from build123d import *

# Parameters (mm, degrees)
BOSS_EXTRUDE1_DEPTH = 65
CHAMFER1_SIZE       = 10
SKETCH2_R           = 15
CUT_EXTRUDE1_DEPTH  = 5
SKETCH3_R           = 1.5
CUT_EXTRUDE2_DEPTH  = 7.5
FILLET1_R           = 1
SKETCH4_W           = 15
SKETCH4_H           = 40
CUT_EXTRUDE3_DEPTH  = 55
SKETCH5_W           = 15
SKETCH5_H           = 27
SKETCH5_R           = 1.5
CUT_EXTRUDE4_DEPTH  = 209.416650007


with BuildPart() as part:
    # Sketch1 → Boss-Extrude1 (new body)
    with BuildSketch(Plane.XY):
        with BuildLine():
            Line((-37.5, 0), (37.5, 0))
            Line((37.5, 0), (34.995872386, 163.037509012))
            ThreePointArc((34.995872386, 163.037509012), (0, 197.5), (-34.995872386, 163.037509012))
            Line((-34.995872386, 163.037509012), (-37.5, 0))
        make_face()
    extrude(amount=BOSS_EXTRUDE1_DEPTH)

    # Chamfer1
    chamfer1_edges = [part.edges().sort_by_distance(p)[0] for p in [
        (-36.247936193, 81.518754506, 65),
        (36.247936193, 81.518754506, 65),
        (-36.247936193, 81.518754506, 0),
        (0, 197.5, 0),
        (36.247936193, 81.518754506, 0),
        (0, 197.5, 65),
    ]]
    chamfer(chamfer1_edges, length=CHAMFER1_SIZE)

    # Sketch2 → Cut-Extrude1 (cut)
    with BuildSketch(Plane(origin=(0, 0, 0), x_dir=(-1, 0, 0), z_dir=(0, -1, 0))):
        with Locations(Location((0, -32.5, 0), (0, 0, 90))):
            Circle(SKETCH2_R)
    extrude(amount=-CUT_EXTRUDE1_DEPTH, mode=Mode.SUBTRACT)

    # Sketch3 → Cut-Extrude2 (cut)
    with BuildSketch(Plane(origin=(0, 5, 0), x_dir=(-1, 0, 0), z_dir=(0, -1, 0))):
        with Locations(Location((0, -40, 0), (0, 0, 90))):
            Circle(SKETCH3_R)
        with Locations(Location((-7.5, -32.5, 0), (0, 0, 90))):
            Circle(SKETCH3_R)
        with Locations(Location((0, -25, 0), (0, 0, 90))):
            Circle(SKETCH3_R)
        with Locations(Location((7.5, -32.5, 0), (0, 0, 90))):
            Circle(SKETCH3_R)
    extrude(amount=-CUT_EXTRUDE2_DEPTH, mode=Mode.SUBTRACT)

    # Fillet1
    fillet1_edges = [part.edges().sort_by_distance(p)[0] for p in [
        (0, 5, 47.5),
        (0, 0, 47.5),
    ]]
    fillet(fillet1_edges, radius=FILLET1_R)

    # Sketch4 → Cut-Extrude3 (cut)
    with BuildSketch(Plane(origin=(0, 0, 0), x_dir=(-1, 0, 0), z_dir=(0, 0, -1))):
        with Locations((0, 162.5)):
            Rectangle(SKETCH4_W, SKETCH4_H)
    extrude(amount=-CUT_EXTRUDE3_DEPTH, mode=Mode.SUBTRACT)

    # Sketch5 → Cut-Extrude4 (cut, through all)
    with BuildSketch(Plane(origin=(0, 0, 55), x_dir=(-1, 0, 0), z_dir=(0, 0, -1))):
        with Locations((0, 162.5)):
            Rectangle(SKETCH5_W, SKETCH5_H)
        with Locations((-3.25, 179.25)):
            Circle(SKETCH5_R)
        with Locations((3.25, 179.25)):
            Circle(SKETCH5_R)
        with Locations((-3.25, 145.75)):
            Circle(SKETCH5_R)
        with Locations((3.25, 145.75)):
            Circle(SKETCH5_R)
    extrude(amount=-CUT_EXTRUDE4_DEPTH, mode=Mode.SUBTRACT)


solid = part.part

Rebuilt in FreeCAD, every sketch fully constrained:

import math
import FreeCAD as App
import Part
import Sketcher
Q = App.Units.Quantity


def edges_at(feature, points):
    """Names of the edges that pass closest to the given points."""
    edges = feature.Shape.Edges
    near = lambda p: min(range(len(edges)), key=lambda i: edges[i].distToShape(Part.Vertex(*p))[0])
    return sorted({f"Edge{near(p) + 1}" for p in points})


def add_polygon(sketch, points):
    """Adds a closed chain of lines whose ends are joined by coincident constraints."""
    first, n = sketch.GeometryCount, len(points)
    for a, b in zip(points, points[1:] + points[:1]):
        sketch.addGeometry(Part.LineSegment(App.Vector(*a, 0), App.Vector(*b, 0)), False)
    for i in range(n):
        sketch.addConstraint(Sketcher.Constraint("Coincident", first + i, 2, first + (i + 1) % n, 1))

doc = App.newDocument("Part")
params = doc.addObject("Spreadsheet::Sheet", "Params")
for row, (alias, value) in enumerate([
    ("sketch1_radius", "35 mm"),
    ("sketch1_width", "75 mm"),
    ("pad1_length", "65 mm"),
    ("chamfer_size", "10 mm"),
    ("sketch2_diameter", "30 mm"),
    ("pocket1_length", "5 mm"),
    ("sketch3_diameter", "3 mm"),
    ("pocket2_length", "7.5 mm"),
    ("fillet_radius", "1 mm"),
    ("sketch4_width", "15 mm"),
    ("sketch4_height", "40 mm"),
    ("pocket3_length", "55 mm"),
    ("sketch5_diameter", "3 mm"),
    ("sketch5_width", "15 mm"),
    ("sketch5_height", "27 mm"),
], start=1):
    params.set(f"A{row}", alias)
    params.set(f"B{row}", "=" + value)
    params.setAlias(f"B{row}", alias)

body = doc.addObject("PartDesign::Body", "Body")

sketch1 = body.newObject("Sketcher::SketchObject", "Sketch")
sketch1.AttachmentSupport = (doc.getObject("XY_Plane"), [""])
sketch1.MapMode = "FlatFace"
sketch1.addGeometry(Part.LineSegment(App.Vector(-38, 0, 0), App.Vector(38, 0, 0)), False)
sketch1.addGeometry(Part.LineSegment(App.Vector(38, 0, 0), App.Vector(35, 163, 0)), False)
sketch1.addGeometry(Part.ArcOfCircle(Part.Circle(App.Vector(0, 162, 0), App.Vector(0, 0, 1), 35), math.radians(1), math.radians(179)), False)
sketch1.addGeometry(Part.LineSegment(App.Vector(-35, 163, 0), App.Vector(-38, 0, 0)), False)
sketch1.addConstraint(Sketcher.Constraint("Coincident", 0, 2, 1, 1))
sketch1.addConstraint(Sketcher.Constraint("Tangent", 1, 2, 2, 1))
sketch1.addConstraint(Sketcher.Constraint("Tangent", 2, 2, 3, 1))
sketch1.addConstraint(Sketcher.Constraint("Coincident", 3, 2, 0, 1))
sketch1.addConstraint(Sketcher.Constraint("Horizontal", 0))
sketch1.addConstraint(Sketcher.Constraint("Symmetric", 0, 2, 3, 2, -1, 1))
sketch1.addConstraint(Sketcher.Constraint("PointOnObject", 2, 3, -2))
sketch1.addConstraint(Sketcher.Constraint("Radius", 2, Q("35 mm")))
sketch1.addConstraint(Sketcher.Constraint("DistanceX", 0, 1, 0, 2, Q("75 mm")))
sketch1.addConstraint(Sketcher.Constraint("DistanceY", -1, 1, 2, 3, Q("162.5 mm")))
sketch1.setExpression("Constraints[7]", "Params.sketch1_radius")
sketch1.setExpression("Constraints[8]", "Params.sketch1_width")
pad1 = body.newObject("PartDesign::Pad", "Pad")
pad1.Profile = sketch1
pad1.setExpression("Length", "Params.pad1_length")
doc.recompute()

chamfer = body.newObject("PartDesign::Chamfer", "Chamfer")
chamfer.Base = (pad1, edges_at(pad1, [
    (-36.248, 81.519, 65),
    (36.248, 81.519, 65),
    (-36.248, 81.519, 0),
    (0, 197.5, 0),
    (36.248, 81.519, 0),
    (0, 197.5, 65),
]))
chamfer.setExpression("Size", "Params.chamfer_size")

sketch2 = body.newObject("Sketcher::SketchObject", "Sketch001")
sketch2.AttachmentSupport = (doc.getObject("XZ_Plane"), [""])
sketch2.MapMode = "FlatFace"
sketch2.addGeometry(Part.Circle(App.Vector(0, 32, 0), App.Vector(0, 0, 1), 15), False)
sketch2.addConstraint(Sketcher.Constraint("PointOnObject", 0, 3, -2))
sketch2.addConstraint(Sketcher.Constraint("Diameter", 0, Q("30 mm")))
sketch2.addConstraint(Sketcher.Constraint("DistanceY", -1, 1, 0, 3, Q("32.5 mm")))
sketch2.setExpression("Constraints[1]", "Params.sketch2_diameter")
pocket1 = body.newObject("PartDesign::Pocket", "Pocket")
pocket1.Profile = sketch2
pocket1.setExpression("Length", "Params.pocket1_length")

sketch3 = body.newObject("Sketcher::SketchObject", "Sketch002")
sketch3.AttachmentSupport = (doc.getObject("XZ_Plane"), [""])
sketch3.MapMode = "FlatFace"
sketch3.AttachmentOffset = App.Placement(App.Vector(0, 0, -5), App.Rotation())
sketch3.addGeometry(Part.Circle(App.Vector(0, 40, 0), App.Vector(0, 0, 1), 1.5), False)
sketch3.addGeometry(Part.Circle(App.Vector(7.5, 32.5, 0), App.Vector(0, 0, 1), 1.5), False)
sketch3.addGeometry(Part.Circle(App.Vector(0, 25, 0), App.Vector(0, 0, 1), 1.5), False)
sketch3.addGeometry(Part.Circle(App.Vector(-7.5, 32.5, 0), App.Vector(0, 0, 1), 1.5), False)
sketch3.addConstraint(Sketcher.Constraint("Equal", 0, 1))
sketch3.addConstraint(Sketcher.Constraint("Equal", 1, 2))
sketch3.addConstraint(Sketcher.Constraint("Equal", 2, 3))
sketch3.addConstraint(Sketcher.Constraint("Symmetric", 1, 3, 3, 3, -2))
sketch3.addConstraint(Sketcher.Constraint("PointOnObject", 0, 3, -2))
sketch3.addConstraint(Sketcher.Constraint("PointOnObject", 2, 3, -2))
sketch3.addConstraint(Sketcher.Constraint("Diameter", 0, Q("3 mm")))
sketch3.addConstraint(Sketcher.Constraint("DistanceY", -1, 1, 0, 3, Q("40 mm")))
sketch3.addConstraint(Sketcher.Constraint("DistanceY", -1, 1, 2, 3, Q("25 mm")))
sketch3.addConstraint(Sketcher.Constraint("DistanceX", 3, 3, 1, 3, Q("15 mm")))
sketch3.addConstraint(Sketcher.Constraint("DistanceY", -1, 1, 1, 3, Q("32.5 mm")))
sketch3.setExpression("Constraints[6]", "Params.sketch3_diameter")
pocket2 = body.newObject("PartDesign::Pocket", "Pocket001")
pocket2.Profile = sketch3
pocket2.setExpression("Length", "Params.pocket2_length")
doc.recompute()

fillet = body.newObject("PartDesign::Fillet", "Fillet")
fillet.Base = (pocket2, edges_at(pocket2, [(0, 5, 47.5), (0, 0, 47.5)]))
fillet.setExpression("Radius", "Params.fillet_radius")

sketch4 = body.newObject("Sketcher::SketchObject", "Sketch003")
sketch4.AttachmentSupport = (doc.getObject("XY_Plane"), [""])
sketch4.MapMode = "FlatFace"
add_polygon(sketch4, [(8, 182), (8, 142), (-8, 142), (-8, 182)])
sketch4.addConstraint(Sketcher.Constraint("Vertical", 0))
sketch4.addConstraint(Sketcher.Constraint("Horizontal", 1))
sketch4.addConstraint(Sketcher.Constraint("Vertical", 2))
sketch4.addConstraint(Sketcher.Constraint("Horizontal", 3))
sketch4.addConstraint(Sketcher.Constraint("DistanceX", 1, 2, 1, 1, Q("15 mm")))
sketch4.addConstraint(Sketcher.Constraint("DistanceY", 0, 2, 0, 1, Q("40 mm")))
sketch4.addConstraint(Sketcher.Constraint("DistanceX", -1, 1, 0, 2, Q("7.5 mm")))
sketch4.addConstraint(Sketcher.Constraint("DistanceY", -1, 1, 0, 2, Q("142.5 mm")))
sketch4.setExpression("Constraints[8]", "Params.sketch4_width")
sketch4.setExpression("Constraints[9]", "Params.sketch4_height")
pocket3 = body.newObject("PartDesign::Pocket", "Pocket002")
pocket3.Profile = sketch4
pocket3.setExpression("Length", "Params.pocket3_length")
pocket3.Reversed = True

sketch5 = body.newObject("Sketcher::SketchObject", "Sketch004")
sketch5.AttachmentSupport = (doc.getObject("XY_Plane"), [""])
sketch5.MapMode = "FlatFace"
sketch5.AttachmentOffset = App.Placement(App.Vector(0, 0, 55), App.Rotation())
add_polygon(sketch5, [(7.5, 176), (7.5, 149), (-7.5, 149), (-7.5, 176)])
sketch5.addGeometry(Part.Circle(App.Vector(3.2, 179.2, 0), App.Vector(0, 0, 1), 1.5), False)
sketch5.addGeometry(Part.Circle(App.Vector(-3.2, 179.2, 0), App.Vector(0, 0, 1), 1.5), False)
sketch5.addGeometry(Part.Circle(App.Vector(3.2, 145.8, 0), App.Vector(0, 0, 1), 1.5), False)
sketch5.addGeometry(Part.Circle(App.Vector(-3.2, 145.8, 0), App.Vector(0, 0, 1), 1.5), False)
sketch5.addConstraint(Sketcher.Constraint("Vertical", 0))
sketch5.addConstraint(Sketcher.Constraint("Horizontal", 1))
sketch5.addConstraint(Sketcher.Constraint("Vertical", 2))
sketch5.addConstraint(Sketcher.Constraint("Horizontal", 3))
sketch5.addConstraint(Sketcher.Constraint("Equal", 4, 5))
sketch5.addConstraint(Sketcher.Constraint("Equal", 5, 6))
sketch5.addConstraint(Sketcher.Constraint("Equal", 6, 7))
sketch5.addConstraint(Sketcher.Constraint("Symmetric", 4, 3, 5, 3, -2))
sketch5.addConstraint(Sketcher.Constraint("Symmetric", 6, 3, 7, 3, -2))
sketch5.addConstraint(Sketcher.Constraint("Vertical", 4, 3, 6, 3))
sketch5.addConstraint(Sketcher.Constraint("Diameter", 4, Q("3 mm")))
sketch5.addConstraint(Sketcher.Constraint("DistanceX", 1, 2, 1, 1, Q("15 mm")))
sketch5.addConstraint(Sketcher.Constraint("DistanceY", 0, 2, 0, 1, Q("27 mm")))
sketch5.addConstraint(Sketcher.Constraint("DistanceY", -1, 1, 0, 2, Q("149 mm")))
sketch5.addConstraint(Sketcher.Constraint("DistanceX", -1, 1, 0, 2, Q("7.5 mm")))
sketch5.addConstraint(Sketcher.Constraint("DistanceX", 5, 3, 4, 3, Q("6.5 mm")))
sketch5.addConstraint(Sketcher.Constraint("DistanceY", 6, 3, 4, 3, Q("33.5 mm")))
sketch5.addConstraint(Sketcher.Constraint("DistanceY", -1, 1, 4, 3, Q("179.25 mm")))
sketch5.setExpression("Constraints[14]", "Params.sketch5_diameter")
sketch5.setExpression("Constraints[15]", "Params.sketch5_width")
sketch5.setExpression("Constraints[16]", "Params.sketch5_height")
pocket4 = body.newObject("PartDesign::Pocket", "Pocket003")
pocket4.Profile = sketch5
pocket4.Type = "ThroughAll"
pocket4.Reversed = True

doc.recompute()
